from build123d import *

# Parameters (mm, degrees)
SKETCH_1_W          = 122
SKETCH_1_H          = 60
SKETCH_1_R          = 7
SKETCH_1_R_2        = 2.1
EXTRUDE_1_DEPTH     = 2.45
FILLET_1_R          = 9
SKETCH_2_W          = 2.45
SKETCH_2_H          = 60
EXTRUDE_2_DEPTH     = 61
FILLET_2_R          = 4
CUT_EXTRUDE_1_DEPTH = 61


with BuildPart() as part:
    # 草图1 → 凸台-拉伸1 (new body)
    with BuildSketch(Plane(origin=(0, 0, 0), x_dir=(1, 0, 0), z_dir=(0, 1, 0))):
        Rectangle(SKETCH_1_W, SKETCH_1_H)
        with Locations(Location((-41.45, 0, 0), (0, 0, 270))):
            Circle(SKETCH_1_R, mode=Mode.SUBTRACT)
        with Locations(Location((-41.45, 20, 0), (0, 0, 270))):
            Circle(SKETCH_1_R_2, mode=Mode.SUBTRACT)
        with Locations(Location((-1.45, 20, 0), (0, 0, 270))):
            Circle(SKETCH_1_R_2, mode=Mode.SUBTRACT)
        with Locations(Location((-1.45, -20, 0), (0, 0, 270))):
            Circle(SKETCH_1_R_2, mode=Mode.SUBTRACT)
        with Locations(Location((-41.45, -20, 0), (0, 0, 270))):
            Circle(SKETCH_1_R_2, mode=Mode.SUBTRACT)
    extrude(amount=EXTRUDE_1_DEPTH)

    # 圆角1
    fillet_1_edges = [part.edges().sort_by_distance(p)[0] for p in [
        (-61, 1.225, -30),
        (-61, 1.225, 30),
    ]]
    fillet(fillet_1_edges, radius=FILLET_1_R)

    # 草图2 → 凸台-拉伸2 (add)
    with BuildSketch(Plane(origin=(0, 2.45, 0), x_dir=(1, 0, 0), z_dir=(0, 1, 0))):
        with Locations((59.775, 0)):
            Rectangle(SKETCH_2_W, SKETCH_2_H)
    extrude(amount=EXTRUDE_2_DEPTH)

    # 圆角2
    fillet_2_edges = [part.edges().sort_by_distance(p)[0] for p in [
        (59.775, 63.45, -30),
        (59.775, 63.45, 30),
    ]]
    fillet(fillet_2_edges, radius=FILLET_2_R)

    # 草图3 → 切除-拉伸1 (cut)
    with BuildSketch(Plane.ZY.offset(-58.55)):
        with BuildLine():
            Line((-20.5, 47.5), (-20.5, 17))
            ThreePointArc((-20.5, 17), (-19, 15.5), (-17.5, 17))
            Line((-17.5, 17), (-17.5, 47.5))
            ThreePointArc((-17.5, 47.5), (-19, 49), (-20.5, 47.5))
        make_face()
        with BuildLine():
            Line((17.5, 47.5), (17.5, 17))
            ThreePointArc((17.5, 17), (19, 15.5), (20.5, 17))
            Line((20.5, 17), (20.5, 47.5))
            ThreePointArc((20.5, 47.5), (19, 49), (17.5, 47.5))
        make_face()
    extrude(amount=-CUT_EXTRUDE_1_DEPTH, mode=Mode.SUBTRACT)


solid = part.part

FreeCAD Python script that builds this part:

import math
import FreeCAD as App
import Part
import Sketcher
from FreeCAD import Vector
Q = App.Units.Quantity


def edges_at(feature, points):
    """Names of the edges that pass closest to the given points."""
    edges = feature.Shape.Edges
    near = lambda p: min(range(len(edges)), key=lambda i: edges[i].distToShape(Part.Vertex(*p))[0])
    return sorted({f"Edge{near(p) + 1}" for p in points})


def add_polygon(sketch, points):
    """Adds a closed chain of lines whose ends are joined by coincident constraints."""
    first, n = sketch.GeometryCount, len(points)
    for a, b in zip(points, points[1:] + points[:1]):
        sketch.addGeometry(Part.LineSegment(App.Vector(*a, 0), App.Vector(*b, 0)), False)
    for i in range(n):
        sketch.addConstraint(Sketcher.Constraint("Coincident", first + i, 2, first + (i + 1) % n, 1))

doc = App.newDocument("Part")
params = doc.addObject("Spreadsheet::Sheet", "Params")
for row, (alias, value) in enumerate([
    ("sketch1_diameter", "14 mm"),
    ("sketch1_diameter2", "4.2 mm"),
    ("sketch1_width", "122 mm"),
    ("sketch1_height", "60 mm"),
    ("pad1_length", "2.45 mm"),
    ("fillet_radius", "9 mm"),
    ("sketch2_height", "60 mm"),
    ("sketch2_width", "2.45 mm"),
    ("pad2_length", "61 mm"),
    ("fillet2_radius", "4 mm"),
    ("sketch3_radius", "1.5 mm"),
    ("sketch3_width", "30.5 mm"),
    ("pocket1_length", "61 mm"),
], start=1):
    params.set(f"A{row}", alias)
    params.set(f"B{row}", "=" + value)
    params.setAlias(f"B{row}", alias)

body = doc.addObject("PartDesign::Body", "Body")

# Sketch on XZ plane
sketch1 = body.newObject("Sketcher::SketchObject", "Sketch")
sketch1.AttachmentSupport = (doc.getObject("XZ_Plane"), [""])
sketch1.MapMode = "FlatFace"
add_polygon(sketch1, [(-61, -30), (-61, 30), (61, 30), (61, -30)])  # lines 0-3
sketch1.addGeometry(Part.Circle(Vector(-41.5, 20, 0), Vector(0, 0, 1), 2.1), False)  # 4
sketch1.addGeometry(Part.Circle(Vector(-1.4, 20, 0), Vector(0, 0, 1), 2.1), False)  # 5
sketch1.addGeometry(Part.Circle(Vector(-41.5, 0, 0), Vector(0, 0, 1), 7), False)  # 6
sketch1.addGeometry(Part.Circle(Vector(-41.5, -20, 0), Vector(0, 0, 1), 2.1), False)  # 7
sketch1.addGeometry(Part.Circle(Vector(-1.4, -20, 0), Vector(0, 0, 1), 2.1), False)  # 8
sketch1.addConstraint([
    Sketcher.Constraint("Vertical", 0),
    Sketcher.Constraint("Horizontal", 1),
    Sketcher.Constraint("Vertical", 2),
    Sketcher.Constraint("Horizontal", 3),
    Sketcher.Constraint("Equal", 4, 5),
    Sketcher.Constraint("Equal", 5, 7),
    Sketcher.Constraint("Equal", 7, 8),
    Sketcher.Constraint("Symmetric", 0, 2, 2, 2, -1, 1),
    Sketcher.Constraint("Symmetric", 4, 3, 7, 3, -1),
    Sketcher.Constraint("Symmetric", 5, 3, 8, 3, -1),
    Sketcher.Constraint("PointOnObject", 6, 3, -1),
    Sketcher.Constraint("Horizontal", 4, 3, 5, 3),
    Sketcher.Constraint("Vertical", 4, 3, 6, 3),
    Sketcher.Constraint("Diameter", 6, Q("14 mm")),
    Sketcher.Constraint("Diameter", 4, Q("4.2 mm")),
    Sketcher.Constraint("DistanceX", 1, 1, 1, 2, Q("122 mm")),
    Sketcher.Constraint("DistanceY", 0, 1, 0, 2, Q("60 mm")),
    Sketcher.Constraint("DistanceY", -1, 1, 4, 3, Q("20 mm")),
    Sketcher.Constraint("DistanceX", 4, 3, 5, 3, Q("40 mm")),
    Sketcher.Constraint("DistanceX", 4, 3, -1, 1, Q("41.45 mm")),
])
sketch1.setExpression("Constraints[17]", "Params.sketch1_diameter")
sketch1.setExpression("Constraints[18]", "Params.sketch1_diameter2")
sketch1.setExpression("Constraints[19]", "Params.sketch1_width")
sketch1.setExpression("Constraints[20]", "Params.sketch1_height")
pad1 = body.newObject("PartDesign::Pad", "Pad")
pad1.Profile = sketch1
pad1.setExpression("Length", "Params.pad1_length")
pad1.Reversed = True
doc.recompute()

fillet = body.newObject("PartDesign::Fillet", "Fillet")
fillet.Base = (pad1, edges_at(pad1, [(-61, 1.225, -30), (-61, 1.225, 30)]))
fillet.setExpression("Radius", "Params.fillet_radius")

# Sketch on XZ plane
sketch2 = body.newObject("Sketcher::SketchObject", "Sketch001")
sketch2.AttachmentSupport = (doc.getObject("XZ_Plane"), [""])
sketch2.MapMode = "FlatFace"
sketch2.AttachmentOffset = App.Placement(Vector(0, 0, -2.45), App.Rotation())
add_polygon(sketch2, [(58.5, -30), (58.5, 30), (61, 30), (61, -30)])  # lines 0-3
sketch2.addConstraint([
    Sketcher.Constraint("Vertical", 0),
    Sketcher.Constraint("Horizontal", 1),
    Sketcher.Constraint("Vertical", 2),
    Sketcher.Constraint("Horizontal", 3),
    Sketcher.Constraint("DistanceY", 0, 1, 0, 2, Q("60 mm")),
    Sketcher.Constraint("DistanceY", -1, 1, 0, 2, Q("30 mm")),
    Sketcher.Constraint("DistanceX", -1, 1, 1, 2, Q("61 mm")),
    Sketcher.Constraint("DistanceX", 1, 1, 1, 2, Q("2.45 mm")),
])
sketch2.setExpression("Constraints[8]", "Params.sketch2_height")
sketch2.setExpression("Constraints[11]", "Params.sketch2_width")
pad2 = body.newObject("PartDesign::Pad", "Pad001")
pad2.Profile = sketch2
pad2.setExpression("Length", "Params.pad2_length")
pad2.Reversed = True
doc.recompute()

fillet2 = body.newObject("PartDesign::Fillet", "Fillet001")
fillet2.Base = (pad2, edges_at(pad2, [(59.775, 63.45, -30), (59.775, 63.45, 30)]))
fillet2.setExpression("Radius", "Params.fillet2_radius")

# Sketch on YZ plane
sketch3 = body.newObject("Sketcher::SketchObject", "Sketch002")
sketch3.AttachmentSupport = (doc.getObject("YZ_Plane"), [""])
sketch3.MapMode = "FlatFace"
sketch3.AttachmentOffset = App.Placement(Vector(0, 0, 58.55), App.Rotation())
sketch3.addGeometry([
    Part.LineSegment(Vector(47.5, -20.5, 0), Vector(17, -20.5, 0)),  # 0
    Part.ArcOfCircle(Part.Circle(Vector(17, -19, 0), Vector(0, 0, 1), 1.5), math.radians(90), math.radians(270)),  # 1
    Part.LineSegment(Vector(17, -17.5, 0), Vector(47.5, -17.5, 0)),  # 2
    Part.ArcOfCircle(Part.Circle(Vector(47.5, -19, 0), Vector(0, 0, 1), 1.5), math.radians(-90), math.radians(90)),  # 3
    Part.LineSegment(Vector(47.5, 17.5, 0), Vector(17, 17.5, 0)),  # 4
    Part.ArcOfCircle(Part.Circle(Vector(17, 19, 0), Vector(0, 0, 1), 1.5), math.radians(90), math.radians(270)),  # 5
    Part.LineSegment(Vector(17, 20.5, 0), Vector(47.5, 20.5, 0)),  # 6
    Part.ArcOfCircle(Part.Circle(Vector(47.5, 19, 0), Vector(0, 0, 1), 1.5), math.radians(-90), math.radians(90)),  # 7
], False)
sketch3.addConstraint([
    Sketcher.Constraint("Tangent", 0, 2, 1, 2),
    Sketcher.Constraint("Tangent", 1, 1, 2, 1),
    Sketcher.Constraint("Tangent", 2, 2, 3, 2),
    Sketcher.Constraint("Tangent", 3, 1, 0, 1),
    Sketcher.Constraint("Tangent", 4, 2, 5, 2),
    Sketcher.Constraint("Tangent", 5, 1, 6, 1),
    Sketcher.Constraint("Tangent", 6, 2, 7, 2),
    Sketcher.Constraint("Tangent", 7, 1, 4, 1),
    Sketcher.Constraint("Horizontal", 0),
    Sketcher.Constraint("Horizontal", 2),
    Sketcher.Constraint("Horizontal", 4),
    Sketcher.Constraint("Horizontal", 6),
    Sketcher.Constraint("Equal", 3, 5),
    Sketcher.Constraint("Symmetric", 1, 3, 5, 3, -1),
    Sketcher.Constraint("Vertical", 3, 3, 7, 3),
    Sketcher.Constraint("Radius", 1, Q("1.5 mm")),
    Sketcher.Constraint("DistanceX", 0, 2, 0, 1, Q("30.5 mm")),
    Sketcher.Constraint("DistanceX", -1, 1, 1, 3, Q("17 mm")),
    Sketcher.Constraint("DistanceY", 1, 3, -1, 1, Q("19 mm")),
])
sketch3.setExpression("Constraints[15]", "Params.sketch3_radius")
sketch3.setExpression("Constraints[16]", "Params.sketch3_width")
pocket1 = body.newObject("PartDesign::Pocket", "Pocket")
pocket1.Profile = sketch3
pocket1.setExpression("Length", "Params.pocket1_length")
pocket1.Reversed = True

doc.recompute()
